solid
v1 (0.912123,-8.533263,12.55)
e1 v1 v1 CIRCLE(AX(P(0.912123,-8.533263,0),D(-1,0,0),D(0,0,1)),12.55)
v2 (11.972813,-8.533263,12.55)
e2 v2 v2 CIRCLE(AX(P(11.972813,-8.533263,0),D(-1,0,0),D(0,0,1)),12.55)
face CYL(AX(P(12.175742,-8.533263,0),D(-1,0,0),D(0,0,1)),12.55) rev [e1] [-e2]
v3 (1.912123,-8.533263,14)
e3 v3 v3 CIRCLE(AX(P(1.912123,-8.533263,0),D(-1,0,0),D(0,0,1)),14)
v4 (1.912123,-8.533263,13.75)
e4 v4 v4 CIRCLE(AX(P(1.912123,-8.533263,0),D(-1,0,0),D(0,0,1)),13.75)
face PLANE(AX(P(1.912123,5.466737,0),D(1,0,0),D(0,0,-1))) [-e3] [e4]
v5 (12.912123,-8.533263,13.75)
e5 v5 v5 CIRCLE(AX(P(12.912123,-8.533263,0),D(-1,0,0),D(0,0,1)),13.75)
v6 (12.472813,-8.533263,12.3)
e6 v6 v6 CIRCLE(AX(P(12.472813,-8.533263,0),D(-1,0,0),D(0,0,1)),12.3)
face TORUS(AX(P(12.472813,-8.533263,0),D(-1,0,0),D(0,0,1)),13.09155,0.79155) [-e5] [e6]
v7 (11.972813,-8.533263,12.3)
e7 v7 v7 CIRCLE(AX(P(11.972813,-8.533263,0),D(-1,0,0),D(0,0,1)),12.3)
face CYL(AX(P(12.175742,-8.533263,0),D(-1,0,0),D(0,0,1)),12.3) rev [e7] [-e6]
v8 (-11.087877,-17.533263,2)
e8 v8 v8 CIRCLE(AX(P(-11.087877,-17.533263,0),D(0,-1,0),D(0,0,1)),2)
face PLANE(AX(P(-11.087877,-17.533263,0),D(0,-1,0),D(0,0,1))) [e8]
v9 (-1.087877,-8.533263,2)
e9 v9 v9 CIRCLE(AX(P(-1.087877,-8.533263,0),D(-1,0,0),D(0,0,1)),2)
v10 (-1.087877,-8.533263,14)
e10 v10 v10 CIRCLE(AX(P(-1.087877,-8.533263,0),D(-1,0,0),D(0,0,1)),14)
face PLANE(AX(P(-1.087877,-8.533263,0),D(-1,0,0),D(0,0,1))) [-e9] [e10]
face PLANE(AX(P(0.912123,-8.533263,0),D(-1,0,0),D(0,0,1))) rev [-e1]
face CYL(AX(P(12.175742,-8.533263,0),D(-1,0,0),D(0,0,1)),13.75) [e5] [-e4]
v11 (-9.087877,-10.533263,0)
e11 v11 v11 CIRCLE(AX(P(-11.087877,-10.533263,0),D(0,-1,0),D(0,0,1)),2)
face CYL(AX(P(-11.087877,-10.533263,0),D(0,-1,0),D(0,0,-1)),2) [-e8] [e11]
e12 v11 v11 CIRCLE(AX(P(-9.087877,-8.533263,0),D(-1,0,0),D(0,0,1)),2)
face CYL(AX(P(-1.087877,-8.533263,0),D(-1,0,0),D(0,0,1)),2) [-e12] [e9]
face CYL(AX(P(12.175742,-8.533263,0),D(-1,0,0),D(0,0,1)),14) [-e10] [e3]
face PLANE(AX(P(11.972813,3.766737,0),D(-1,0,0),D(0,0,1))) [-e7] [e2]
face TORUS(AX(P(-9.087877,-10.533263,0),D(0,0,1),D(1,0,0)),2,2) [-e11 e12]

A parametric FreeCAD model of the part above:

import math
import FreeCAD as App
import Part
import Sketcher
from FreeCAD import Vector
Q = App.Units.Quantity

doc = App.newDocument("Part")
body = doc.addObject("PartDesign::Body", "Body")

# Sketch on XY plane
sketch1 = body.newObject("Sketcher::SketchObject", "Sketch")
sketch1.AttachmentSupport = (doc.getObject("XY_Plane"), [""])
sketch1.MapMode = "FlatFace"
sketch1.addGeometry(Part.LineSegment(Vector(11.97, 3.77, 0), Vector(11.97, 4.02, 0)), False)
sketch1.addGeometry(Part.LineSegment(Vector(11.97, 4.02, 0), Vector(0.91, 4.02, 0)), False)
sketch1.addGeometry(Part.LineSegment(Vector(0.91, 4.02, 0), Vector(0.91, 5.47, 0)), False)
sketch1.addGeometry(Part.LineSegment(Vector(0.91, 5.47, 0), Vector(1.91, 5.47, 0)), False)
sketch1.addGeometry(Part.LineSegment(Vector(1.91, 5.47, 0), Vector(1.91, 5.22, 0)), False)
sketch1.addGeometry(Part.LineSegment(Vector(1.91, 5.22, 0), Vector(12.91, 5.22, 0)), False)
sketch1.addGeometry(Part.ArcOfCircle(Part.Circle(Vector(12.47, 4.56, 0), Vector(0, 0, 1), 0.79), math.radians(-90), math.radians(56)), False)
sketch1.addGeometry(Part.LineSegment(Vector(12.47, 3.77, 0), Vector(11.97, 3.77, 0)), False)
sketch1.addGeometry(Part.LineSegment(Vector(12.91, -8.53, 0), Vector(0.91, -8.53, 0)), True)  # axis
sketch1.addConstraint(Sketcher.Constraint("Coincident", 0, 2, 1, 1))
sketch1.addConstraint(Sketcher.Constraint("Coincident", 1, 2, 2, 1))
sketch1.addConstraint(Sketcher.Constraint("Coincident", 2, 2, 3, 1))
sketch1.addConstraint(Sketcher.Constraint("Coincident", 3, 2, 4, 1))
sketch1.addConstraint(Sketcher.Constraint("Coincident", 4, 2, 5, 1))
sketch1.addConstraint(Sketcher.Constraint("Coincident", 5, 2, 6, 2))
sketch1.addConstraint(Sketcher.Constraint("Tangent", 6, 1, 7, 1))
sketch1.addConstraint(Sketcher.Constraint("Coincident", 7, 2, 0, 1))
sketch1.addConstraint(Sketcher.Constraint("Vertical", 0))
sketch1.addConstraint(Sketcher.Constraint("Horizontal", 1))
sketch1.addConstraint(Sketcher.Constraint("Vertical", 2))
sketch1.addConstraint(Sketcher.Constraint("Horizontal", 3))
sketch1.addConstraint(Sketcher.Constraint("Vertical", 4))
sketch1.addConstraint(Sketcher.Constraint("Horizontal", 5))
sketch1.addConstraint(Sketcher.Constraint("Horizontal", 7))
sketch1.addConstraint(Sketcher.Constraint("Horizontal", 8))
sketch1.addConstraint(Sketcher.Constraint("Vertical", 5, 2, 8, 1))
sketch1.addConstraint(Sketcher.Constraint("Vertical", 2, 2, 8, 2))
sketch1.addConstraint(Sketcher.Constraint("Equal", 0, 4))
sketch1.addConstraint(Sketcher.Constraint("DistanceX", 3, 1, 3, 2, Q("1 mm")))
sketch1.addConstraint(Sketcher.Constraint("DistanceX", 5, 1, 5, 2, Q("11 mm")))
sketch1.addConstraint(Sketcher.Constraint("DistanceX", 7, 2, 7, 1, Q("0.5 mm")))
sketch1.addConstraint(Sketcher.Constraint("DistanceY", 8, 2, 2, 2, Q("14 mm")))
sketch1.addConstraint(Sketcher.Constraint("DistanceY", 0, 1, 0, 2, Q("0.25 mm")))
sketch1.addConstraint(Sketcher.Constraint("DistanceY", 2, 1, 2, 2, Q("1.45 mm")))
sketch1.addConstraint(Sketcher.Constraint("Radius", 6, Q("0.79155 mm")))
sketch1.addConstraint(Sketcher.Constraint("DistanceX", -1, 1, 6, 3, Q("12.472813 mm")))
sketch1.addConstraint(Sketcher.Constraint("DistanceY", -1, 1, 6, 3, Q("4.558286 mm")))
revolution = body.newObject("PartDesign::Revolution", "Revolution")
revolution.Profile = sketch1
revolution.ReferenceAxis = (sketch1, ["Axis0"])
revolution.Angle = 360

# Sketch on YZ plane
sketch2 = body.newObject("Sketcher::SketchObject", "Sketch001")
sketch2.AttachmentSupport = (doc.getObject("YZ_Plane"), [""])
sketch2.MapMode = "FlatFace"
sketch2.AttachmentOffset = App.Placement(Vector(0, 0, 0.912123), App.Rotation())
sketch2.addGeometry(Part.Circle(Vector(-9, 0, 0), Vector(0, 0, 1), 14), False)
sketch2.addConstraint(Sketcher.Constraint("PointOnObject", 0, 3, -1))
sketch2.addConstraint(Sketcher.Constraint("Diameter", 0, Q("28 mm")))
sketch2.addConstraint(Sketcher.Constraint("DistanceX", 0, 3, -1, 1, Q("8.533263 mm")))
pad1 = body.newObject("PartDesign::Pad", "Pad")
pad1.Profile = sketch2
pad1.Length = 2
pad1.Reversed = True

# Sketch on YZ plane
sketch3 = body.newObject("Sketcher::SketchObject", "Sketch002")
sketch3.AttachmentSupport = (doc.getObject("YZ_Plane"), [""])
sketch3.MapMode = "FlatFace"
sketch3.AttachmentOffset = App.Placement(Vector(0, 0, -1.087877), App.Rotation())
sketch3.addGeometry(Part.Circle(Vector(-8.5, 0, 0), Vector(0, 0, 1), 2), False)
sketch3.addConstraint(Sketcher.Constraint("PointOnObject", 0, 3, -1))
sketch3.addConstraint(Sketcher.Constraint("Diameter", 0, Q("4 mm")))
sketch3.addConstraint(Sketcher.Constraint("DistanceX", 0, 3, -1, 1, Q("8.533263 mm")))

# Sketch on XY plane
sketch4 = body.newObject("Sketcher::SketchObject", "Sketch003")
sketch4.AttachmentSupport = (doc.getObject("XY_Plane"), [""])
sketch4.MapMode = "FlatFace"
sketch4.addGeometry(Part.LineSegment(Vector(-1.1, -8.5, 0), Vector(-9.1, -8.5, 0)), False)
sketch4.addGeometry(Part.ArcOfCircle(Part.Circle(Vector(-9.1, -10.5, 0), Vector(0, 0, 1), 2), math.radians(90), math.radians(180)), False)
sketch4.addGeometry(Part.LineSegment(Vector(-11.1, -10.5, 0), Vector(-11.1, -17.5, 0)), False)
sketch4.addConstraint(Sketcher.Constraint("Tangent", 0, 2, 1, 1))
sketch4.addConstraint(Sketcher.Constraint("Tangent", 1, 2, 2, 1))
sketch4.addConstraint(Sketcher.Constraint("Horizontal", 0))
sketch4.addConstraint(Sketcher.Constraint("Vertical", 2))
sketch4.addConstraint(Sketcher.Constraint("Radius", 1, Q("2 mm")))
sketch4.addConstraint(Sketcher.Constraint("DistanceX", 0, 2, 0, 1, Q("8 mm")))
sketch4.addConstraint(Sketcher.Constraint("DistanceY", 2, 2, 2, 1, Q("7 mm")))
sketch4.addConstraint(Sketcher.Constraint("DistanceX", 1, 3, -1, 1, Q("9.087877 mm")))
sketch4.addConstraint(Sketcher.Constraint("DistanceY", 1, 3, -1, 1, Q("10.533263 mm")))
doc.recompute()

additivepipe = body.newObject("PartDesign::AdditivePipe", "AdditivePipe")
additivepipe.Profile = sketch3
additivepipe.Spine = (sketch4, ["Edge1", "Edge2", "Edge3"])

doc.recompute()
